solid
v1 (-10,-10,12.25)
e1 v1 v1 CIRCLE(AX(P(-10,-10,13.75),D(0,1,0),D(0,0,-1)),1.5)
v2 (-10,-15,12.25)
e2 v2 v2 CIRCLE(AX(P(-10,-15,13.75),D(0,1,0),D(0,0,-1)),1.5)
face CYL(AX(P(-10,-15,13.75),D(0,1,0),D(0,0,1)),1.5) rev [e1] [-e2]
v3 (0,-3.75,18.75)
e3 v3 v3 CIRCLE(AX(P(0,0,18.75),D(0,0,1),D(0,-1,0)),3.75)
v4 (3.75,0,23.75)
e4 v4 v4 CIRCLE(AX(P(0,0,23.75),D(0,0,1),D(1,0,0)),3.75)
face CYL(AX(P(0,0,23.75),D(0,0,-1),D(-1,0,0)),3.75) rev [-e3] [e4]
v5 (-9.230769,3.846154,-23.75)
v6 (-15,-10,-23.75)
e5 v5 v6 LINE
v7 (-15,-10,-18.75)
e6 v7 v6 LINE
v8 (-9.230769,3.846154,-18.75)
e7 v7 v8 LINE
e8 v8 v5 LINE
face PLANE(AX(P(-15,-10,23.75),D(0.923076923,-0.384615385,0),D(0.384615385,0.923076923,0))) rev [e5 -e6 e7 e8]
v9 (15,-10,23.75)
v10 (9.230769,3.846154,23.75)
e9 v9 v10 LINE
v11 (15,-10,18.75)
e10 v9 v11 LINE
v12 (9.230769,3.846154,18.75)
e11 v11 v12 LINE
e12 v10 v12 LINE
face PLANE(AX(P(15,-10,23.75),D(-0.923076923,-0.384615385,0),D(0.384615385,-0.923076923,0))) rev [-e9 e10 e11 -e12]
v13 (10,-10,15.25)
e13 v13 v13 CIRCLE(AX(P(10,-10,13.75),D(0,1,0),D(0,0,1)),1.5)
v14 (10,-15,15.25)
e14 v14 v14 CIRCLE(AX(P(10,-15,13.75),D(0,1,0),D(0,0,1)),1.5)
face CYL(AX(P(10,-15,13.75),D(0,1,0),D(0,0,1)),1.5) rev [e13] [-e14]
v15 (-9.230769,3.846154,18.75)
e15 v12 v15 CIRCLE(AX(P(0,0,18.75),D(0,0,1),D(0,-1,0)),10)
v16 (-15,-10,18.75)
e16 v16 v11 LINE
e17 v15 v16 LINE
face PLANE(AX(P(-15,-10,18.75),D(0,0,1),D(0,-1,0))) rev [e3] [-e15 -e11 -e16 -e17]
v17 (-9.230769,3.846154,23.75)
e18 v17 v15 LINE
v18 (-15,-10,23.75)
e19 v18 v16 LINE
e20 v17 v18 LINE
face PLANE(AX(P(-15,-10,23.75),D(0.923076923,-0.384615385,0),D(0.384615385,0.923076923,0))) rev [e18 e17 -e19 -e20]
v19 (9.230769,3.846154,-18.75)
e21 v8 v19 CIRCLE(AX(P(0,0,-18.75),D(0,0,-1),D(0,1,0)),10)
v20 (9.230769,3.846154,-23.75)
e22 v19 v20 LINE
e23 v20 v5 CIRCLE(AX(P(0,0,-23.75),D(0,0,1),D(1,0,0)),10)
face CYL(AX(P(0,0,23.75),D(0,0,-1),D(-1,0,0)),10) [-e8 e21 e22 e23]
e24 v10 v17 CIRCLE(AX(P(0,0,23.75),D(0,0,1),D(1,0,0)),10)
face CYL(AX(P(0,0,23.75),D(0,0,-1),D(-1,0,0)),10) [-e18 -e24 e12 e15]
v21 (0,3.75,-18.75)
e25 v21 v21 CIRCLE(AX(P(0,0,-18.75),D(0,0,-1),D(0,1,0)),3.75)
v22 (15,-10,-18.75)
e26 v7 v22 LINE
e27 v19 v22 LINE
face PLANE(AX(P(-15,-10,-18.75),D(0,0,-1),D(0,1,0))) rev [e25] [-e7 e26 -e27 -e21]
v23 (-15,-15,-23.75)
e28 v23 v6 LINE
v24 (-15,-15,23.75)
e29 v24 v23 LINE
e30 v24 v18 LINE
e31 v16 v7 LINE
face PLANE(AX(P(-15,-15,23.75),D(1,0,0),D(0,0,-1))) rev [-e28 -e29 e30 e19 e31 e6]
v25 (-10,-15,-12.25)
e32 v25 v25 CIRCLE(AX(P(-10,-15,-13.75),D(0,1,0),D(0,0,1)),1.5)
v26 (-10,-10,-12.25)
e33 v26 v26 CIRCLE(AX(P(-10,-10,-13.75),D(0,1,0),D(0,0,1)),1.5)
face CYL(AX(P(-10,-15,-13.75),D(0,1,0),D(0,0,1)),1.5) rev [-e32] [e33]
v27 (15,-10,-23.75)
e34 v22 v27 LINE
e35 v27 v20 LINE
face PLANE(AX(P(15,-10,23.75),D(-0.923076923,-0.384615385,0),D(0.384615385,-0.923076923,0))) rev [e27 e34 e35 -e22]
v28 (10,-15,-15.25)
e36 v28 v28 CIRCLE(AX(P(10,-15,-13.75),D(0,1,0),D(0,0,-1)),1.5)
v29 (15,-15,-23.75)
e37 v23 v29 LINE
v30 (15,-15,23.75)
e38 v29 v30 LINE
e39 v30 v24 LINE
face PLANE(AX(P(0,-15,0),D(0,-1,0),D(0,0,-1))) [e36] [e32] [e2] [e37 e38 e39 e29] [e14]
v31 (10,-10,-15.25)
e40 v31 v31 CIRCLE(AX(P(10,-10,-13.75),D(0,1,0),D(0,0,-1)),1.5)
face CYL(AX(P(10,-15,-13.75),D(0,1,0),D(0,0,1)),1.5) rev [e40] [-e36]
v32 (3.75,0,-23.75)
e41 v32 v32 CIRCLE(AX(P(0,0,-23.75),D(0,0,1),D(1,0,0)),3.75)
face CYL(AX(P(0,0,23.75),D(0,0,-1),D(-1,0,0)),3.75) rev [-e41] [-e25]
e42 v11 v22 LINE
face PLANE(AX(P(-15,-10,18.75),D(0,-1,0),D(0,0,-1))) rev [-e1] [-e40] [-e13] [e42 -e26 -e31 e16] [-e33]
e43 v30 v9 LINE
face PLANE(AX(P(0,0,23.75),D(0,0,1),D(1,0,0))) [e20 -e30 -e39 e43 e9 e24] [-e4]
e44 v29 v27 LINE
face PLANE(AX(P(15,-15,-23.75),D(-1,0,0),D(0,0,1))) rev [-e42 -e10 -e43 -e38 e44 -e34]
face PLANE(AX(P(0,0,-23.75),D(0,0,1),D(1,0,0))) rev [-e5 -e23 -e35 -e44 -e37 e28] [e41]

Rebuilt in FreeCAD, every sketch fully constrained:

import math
import FreeCAD as App
import Part
import Sketcher
Q = App.Units.Quantity


def add_polygon(sketch, points):
    """Adds a closed chain of lines whose ends are joined by coincident constraints."""
    first, n = sketch.GeometryCount, len(points)
    for a, b in zip(points, points[1:] + points[:1]):
        sketch.addGeometry(Part.LineSegment(App.Vector(*a, 0), App.Vector(*b, 0)), False)
    for i in range(n):
        sketch.addConstraint(Sketcher.Constraint("Coincident", first + i, 2, first + (i + 1) % n, 1))

doc = App.newDocument("Part")
body = doc.addObject("PartDesign::Body", "Body")

# Sketch on XY plane
sketch1 = doc.addObject("Sketcher::SketchObject", "Sketch")
body.addObject(sketch1)
sketch1.AttachmentSupport = (doc.XY_Plane, [""])
sketch1.MapMode = "FlatFace"
sketch1.addGeometry(Part.LineSegment(App.Vector(-15, -10, 0), App.Vector(15, -10, 0)), False)
sketch1.addGeometry(Part.LineSegment(App.Vector(15, -10, 0), App.Vector(9.2, 3.8, 0)), False)
sketch1.addGeometry(Part.ArcOfCircle(Part.Circle(App.Vector(0, 0, 0), App.Vector(0, 0, 1), 10), math.radians(23), math.radians(157)), False)
sketch1.addGeometry(Part.LineSegment(App.Vector(-9.2, 3.8, 0), App.Vector(-15, -10, 0)), False)
sketch1.addGeometry(Part.Circle(App.Vector(0, 0, 0), App.Vector(0, 0, 1), 3.8), False)
sketch1.addConstraint(Sketcher.Constraint("Coincident", 0, 2, 1, 1))
sketch1.addConstraint(Sketcher.Constraint("Tangent", 1, 2, 2, 1))
sketch1.addConstraint(Sketcher.Constraint("Tangent", 2, 2, 3, 1))
sketch1.addConstraint(Sketcher.Constraint("Coincident", 3, 2, 0, 1))
sketch1.addConstraint(Sketcher.Constraint("Horizontal", 0))
sketch1.addConstraint(Sketcher.Constraint("Coincident", 2, 3, -1, 1))
sketch1.addConstraint(Sketcher.Constraint("Coincident", 4, 3, -1, 1))
sketch1.addConstraint(Sketcher.Constraint("Horizontal", 1, 2, 2, 2))
sketch1.addConstraint(Sketcher.Constraint("Radius", 2, Q("10 mm")))
sketch1.addConstraint(Sketcher.Constraint("Diameter", 4, Q("7.5 mm")))
sketch1.addConstraint(Sketcher.Constraint("DistanceX", 0, 1, 0, 2, Q("30 mm")))
sketch1.addConstraint(Sketcher.Constraint("Distance", 1, Q("15 mm")))
pad1 = doc.addObject("PartDesign::Pad", "Pad")
body.addObject(pad1)
pad1.Profile = sketch1
pad1.Length = 47.5
pad1.Midplane = True

# Sketch on XZ plane
sketch2 = doc.addObject("Sketcher::SketchObject", "Sketch001")
body.addObject(sketch2)
sketch2.AttachmentSupport = (doc.XZ_Plane, [""])
sketch2.MapMode = "FlatFace"
sketch2.AttachmentOffset = App.Placement(App.Vector(0, 0, 10), App.Rotation())
add_polygon(sketch2, [(-15, 24), (-15, -24), (15, -24), (15, 24)])  # lines 0-3
sketch2.addConstraint(Sketcher.Constraint("Vertical", 0))
sketch2.addConstraint(Sketcher.Constraint("Horizontal", 1))
sketch2.addConstraint(Sketcher.Constraint("Vertical", 2))
sketch2.addConstraint(Sketcher.Constraint("Horizontal", 3))
sketch2.addConstraint(Sketcher.Constraint("Symmetric", 0, 2, 2, 2, -1, 1))
sketch2.addConstraint(Sketcher.Constraint("DistanceX", 1, 1, 1, 2, Q("30 mm")))
sketch2.addConstraint(Sketcher.Constraint("DistanceY", 0, 2, 0, 1, Q("47.5 mm")))
pad2 = doc.addObject("PartDesign::Pad", "Pad001")
body.addObject(pad2)
pad2.Profile = sketch2
pad2.Length = 5

# Sketch on YZ plane
sketch3 = doc.addObject("Sketcher::SketchObject", "Sketch002")
body.addObject(sketch3)
sketch3.AttachmentSupport = (doc.YZ_Plane, [""])
sketch3.MapMode = "FlatFace"
sketch3.AttachmentOffset = App.Placement(App.Vector(0, 0, 15), App.Rotation())
add_polygon(sketch3, [(12, 19), (-10, 19), (-10, -19), (12, -19)])  # lines 0-3
sketch3.addConstraint(Sketcher.Constraint("Horizontal", 0))
sketch3.addConstraint(Sketcher.Constraint("Vertical", 1))
sketch3.addConstraint(Sketcher.Constraint("Horizontal", 2))
sketch3.addConstraint(Sketcher.Constraint("Vertical", 3))
sketch3.addConstraint(Sketcher.Constraint("DistanceY", 1, 2, 1, 1, Q("37.5 mm")))
sketch3.addConstraint(Sketcher.Constraint("DistanceX", 0, 2, -1, 1, Q("10 mm")))
sketch3.addConstraint(Sketcher.Constraint("DistanceY", -1, 1, 0, 2, Q("18.75 mm")))
sketch3.addConstraint(Sketcher.Constraint("DistanceX", 0, 2, 0, 1, Q("21.575564 mm")))
pocket1 = doc.addObject("PartDesign::Pocket", "Pocket")
body.addObject(pocket1)
pocket1.Profile = sketch3
pocket1.Length = 30

# Sketch on XZ plane
sketch4 = doc.addObject("Sketcher::SketchObject", "Sketch003")
body.addObject(sketch4)
sketch4.AttachmentSupport = (doc.XZ_Plane, [""])
sketch4.MapMode = "FlatFace"
sketch4.AttachmentOffset = App.Placement(App.Vector(0, 0, 10), App.Rotation())
sketch4.addGeometry(Part.Circle(App.Vector(-10, -13.8, 0), App.Vector(0, 0, 1), 1.5), False)
sketch4.addGeometry(Part.Circle(App.Vector(10, 13.8, 0), App.Vector(0, 0, 1), 1.5), False)
sketch4.addGeometry(Part.Circle(App.Vector(-10, 13.8, 0), App.Vector(0, 0, 1), 1.5), False)
sketch4.addGeometry(Part.Circle(App.Vector(10, -13.8, 0), App.Vector(0, 0, 1), 1.5), False)
sketch4.addConstraint(Sketcher.Constraint("Equal", 0, 1))
sketch4.addConstraint(Sketcher.Constraint("Equal", 1, 2))
sketch4.addConstraint(Sketcher.Constraint("Equal", 2, 3))
sketch4.addConstraint(Sketcher.Constraint("Symmetric", 0, 3, 1, 3, -1, 1))
sketch4.addConstraint(Sketcher.Constraint("Symmetric", 2, 3, 3, 3, -1, 1))
sketch4.addConstraint(Sketcher.Constraint("Symmetric", 1, 3, 2, 3, -2))
sketch4.addConstraint(Sketcher.Constraint("Diameter", 0, Q("3 mm")))
sketch4.addConstraint(Sketcher.Constraint("DistanceX", 0, 3, -1, 1, Q("10 mm")))
sketch4.addConstraint(Sketcher.Constraint("DistanceY", 0, 3, 1, 3, Q("27.5 mm")))
pocket2 = doc.addObject("PartDesign::Pocket", "Pocket001")
body.addObject(pocket2)
pocket2.Profile = sketch4
pocket2.Length = 5
pocket2.Reversed = True

doc.recompute()
